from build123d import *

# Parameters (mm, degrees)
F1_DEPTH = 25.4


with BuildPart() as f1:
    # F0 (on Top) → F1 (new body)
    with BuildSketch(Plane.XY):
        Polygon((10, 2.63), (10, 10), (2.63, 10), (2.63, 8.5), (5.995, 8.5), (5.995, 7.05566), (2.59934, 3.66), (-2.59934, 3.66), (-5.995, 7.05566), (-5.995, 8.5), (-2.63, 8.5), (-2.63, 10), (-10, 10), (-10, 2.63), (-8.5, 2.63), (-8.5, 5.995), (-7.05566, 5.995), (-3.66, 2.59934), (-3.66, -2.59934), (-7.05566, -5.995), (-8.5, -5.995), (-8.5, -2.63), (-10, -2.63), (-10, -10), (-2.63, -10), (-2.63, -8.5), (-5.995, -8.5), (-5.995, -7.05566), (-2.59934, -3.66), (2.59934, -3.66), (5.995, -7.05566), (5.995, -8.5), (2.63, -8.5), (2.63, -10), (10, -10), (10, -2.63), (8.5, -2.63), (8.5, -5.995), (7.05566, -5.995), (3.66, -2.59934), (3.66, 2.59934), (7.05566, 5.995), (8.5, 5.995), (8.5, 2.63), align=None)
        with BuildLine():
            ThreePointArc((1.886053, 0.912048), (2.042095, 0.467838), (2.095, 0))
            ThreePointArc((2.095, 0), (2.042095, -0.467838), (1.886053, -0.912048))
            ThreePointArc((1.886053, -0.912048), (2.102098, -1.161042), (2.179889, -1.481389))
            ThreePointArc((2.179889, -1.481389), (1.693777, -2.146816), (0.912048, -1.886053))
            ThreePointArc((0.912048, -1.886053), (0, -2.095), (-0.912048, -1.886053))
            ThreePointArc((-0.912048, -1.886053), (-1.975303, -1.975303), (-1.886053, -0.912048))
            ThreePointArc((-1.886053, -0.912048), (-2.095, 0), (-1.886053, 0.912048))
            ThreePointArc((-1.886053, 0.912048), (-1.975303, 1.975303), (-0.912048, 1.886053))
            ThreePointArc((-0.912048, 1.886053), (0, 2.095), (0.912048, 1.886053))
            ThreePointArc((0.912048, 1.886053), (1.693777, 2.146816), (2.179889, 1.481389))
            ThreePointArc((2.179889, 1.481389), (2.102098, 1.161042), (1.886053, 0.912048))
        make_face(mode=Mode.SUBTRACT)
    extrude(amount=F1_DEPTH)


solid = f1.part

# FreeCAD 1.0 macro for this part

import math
import FreeCAD as App
import Part
import Sketcher

V = App.Vector
Q = App.Units.Quantity


def add_polygon(sketch, points):
    """Adds a closed chain of lines whose ends are joined by coincident constraints."""
    first, n = sketch.GeometryCount, len(points)
    for a, b in zip(points, points[1:] + points[:1]):
        sketch.addGeometry(Part.LineSegment(App.Vector(*a, 0), App.Vector(*b, 0)), False)
    for i in range(n):
        sketch.addConstraint(Sketcher.Constraint("Coincident", first + i, 2, first + (i + 1) % n, 1))

doc = App.newDocument("Part")
params = doc.addObject("Spreadsheet::Sheet", "Params")
for row, (alias, value) in enumerate([
    ("pad1_length", "1 in"),
], start=1):
    params.set(f"A{row}", alias)
    params.set(f"B{row}", "=" + value)
    params.setAlias(f"B{row}", alias)

body = doc.addObject("PartDesign::Body", "Body")

# Sketch on XY plane
sketch1 = body.newObject("Sketcher::SketchObject", "Sketch")
sketch1.AttachmentSupport = (doc.getObject("XY_Plane"), [""])
sketch1.MapMode = "FlatFace"
add_polygon(sketch1, [(10, 2.63), (10, 10), (2.63, 10), (2.63, 8.5), (5.995, 8.5), (5.995, 7.05566), (2.59934, 3.66), (-2.59934, 3.66), (-5.995, 7.05566), (-5.995, 8.5), (-2.63, 8.5), (-2.63, 10), (-10, 10), (-10, 2.63), (-8.5, 2.63), (-8.5, 5.995), (-7.05566, 5.995), (-3.66, 2.59934), (-3.66, -2.59934), (-7.05566, -5.995), (-8.5, -5.995), (-8.5, -2.63), (-10, -2.63), (-10, -10), (-2.63, -10), (-2.63, -8.5), (-5.995, -8.5), (-5.995, -7.05566), (-2.59934, -3.66), (2.59934, -3.66), (5.995, -7.05566), (5.995, -8.5), (2.63, -8.5), (2.63, -10), (10, -10), (10, -2.63), (8.5, -2.63), (8.5, -5.995), (7.05566, -5.995), (3.66, -2.59934), (3.66, 2.59934), (7.05566, 5.995), (8.5, 5.995), (8.5, 2.63)])  # lines 0-43
sketch1.addGeometry(Part.ArcOfCircle(Part.Circle(V(1.481387, 1.48139, 0), V(0, 0, 1), 0.698502), math.radians(-54.59629), math.radians(-0.000086)), False)  # 44
sketch1.addGeometry(Part.ArcOfCircle(Part.Circle(V(-0.000017, -0.000003, 0), V(0, 0, 1), 2.095017), math.radians(0.000072), math.radians(25.807106)), False)  # 45
sketch1.addGeometry(Part.ArcOfCircle(Part.Circle(V(-0.000017, 0.000003, 0), V(0, 0, 1), 2.095017), math.radians(-25.807106), math.radians(-0.000072)), False)  # 46
sketch1.addGeometry(Part.ArcOfCircle(Part.Circle(V(1.481387, -1.48139, 0), V(0, 0, 1), 0.698502), math.radians(0.000086), math.radians(54.59629)), False)  # 47
sketch1.addGeometry(Part.ArcOfCircle(Part.Circle(V(1.481389, -1.481389, 0), V(0, 0, 1), 0.6985), math.radians(-144.596328), math.radians(-0.000036)), False)  # 48
sketch1.addGeometry(Part.ArcOfCircle(Part.Circle(V(0, 0.000006, 0), V(0, 0, 1), 2.095006), math.radians(-115.807177), math.radians(-64.192823)), False)  # 49
sketch1.addGeometry(Part.ArcOfCircle(Part.Circle(V(-1.481389, -1.481389, 0), V(0, 0, 1), 0.6985), math.radians(125.40364), math.radians(324.59636)), False)  # 50
sketch1.addGeometry(Part.ArcOfCircle(Part.Circle(V(0.000006, 0, 0), V(0, 0, 1), 2.095006), math.radians(154.192823), math.radians(205.807177)), False)  # 51
sketch1.addGeometry(Part.ArcOfCircle(Part.Circle(V(-1.481389, 1.481389, 0), V(0, 0, 1), 0.6985), math.radians(35.40364), math.radians(234.59636)), False)  # 52
sketch1.addGeometry(Part.ArcOfCircle(Part.Circle(V(0, -0.000006, 0), V(0, 0, 1), 2.095006), math.radians(64.192823), math.radians(115.807177)), False)  # 53
sketch1.addGeometry(Part.ArcOfCircle(Part.Circle(V(1.481389, 1.481389, 0), V(0, 0, 1), 0.6985), math.radians(0.000036), math.radians(144.596328)), False)  # 54
sketch1.addConstraint(Sketcher.Constraint("Coincident", 44, 1, 45, 2))
sketch1.addConstraint(Sketcher.Constraint("Coincident", 45, 1, 46, 2))
sketch1.addConstraint(Sketcher.Constraint("Coincident", 46, 1, 47, 2))
sketch1.addConstraint(Sketcher.Constraint("Coincident", 47, 1, 48, 2))
sketch1.addConstraint(Sketcher.Constraint("Coincident", 48, 1, 49, 2))
sketch1.addConstraint(Sketcher.Constraint("Coincident", 49, 1, 50, 2))
sketch1.addConstraint(Sketcher.Constraint("Coincident", 50, 1, 51, 2))
sketch1.addConstraint(Sketcher.Constraint("Coincident", 51, 1, 52, 2))
sketch1.addConstraint(Sketcher.Constraint("Coincident", 52, 1, 53, 2))
sketch1.addConstraint(Sketcher.Constraint("Coincident", 53, 1, 54, 2))
sketch1.addConstraint(Sketcher.Constraint("Coincident", 54, 1, 44, 2))
sketch1.addConstraint(Sketcher.Constraint("Vertical", 0))
sketch1.addConstraint(Sketcher.Constraint("Horizontal", 1))
sketch1.addConstraint(Sketcher.Constraint("Vertical", 2))
sketch1.addConstraint(Sketcher.Constraint("Horizontal", 3))
sketch1.addConstraint(Sketcher.Constraint("Vertical", 4))
sketch1.addConstraint(Sketcher.Constraint("Horizontal", 6))
sketch1.addConstraint(Sketcher.Constraint("Vertical", 8))
sketch1.addConstraint(Sketcher.Constraint("Horizontal", 9))
sketch1.addConstraint(Sketcher.Constraint("Vertical", 10))
sketch1.addConstraint(Sketcher.Constraint("Horizontal", 11))
sketch1.addConstraint(Sketcher.Constraint("Vertical", 12))
sketch1.addConstraint(Sketcher.Constraint("Horizontal", 13))
sketch1.addConstraint(Sketcher.Constraint("Vertical", 14))
sketch1.addConstraint(Sketcher.Constraint("Horizontal", 15))
sketch1.addConstraint(Sketcher.Constraint("Vertical", 17))
sketch1.addConstraint(Sketcher.Constraint("Horizontal", 19))
sketch1.addConstraint(Sketcher.Constraint("Vertical", 20))
sketch1.addConstraint(Sketcher.Constraint("Horizontal", 21))
sketch1.addConstraint(Sketcher.Constraint("Vertical", 22))
sketch1.addConstraint(Sketcher.Constraint("Horizontal", 23))
sketch1.addConstraint(Sketcher.Constraint("Vertical", 24))
sketch1.addConstraint(Sketcher.Constraint("Horizontal", 25))
sketch1.addConstraint(Sketcher.Constraint("Vertical", 26))
sketch1.addConstraint(Sketcher.Constraint("Horizontal", 28))
sketch1.addConstraint(Sketcher.Constraint("Vertical", 30))
sketch1.addConstraint(Sketcher.Constraint("Horizontal", 31))
sketch1.addConstraint(Sketcher.Constraint("Vertical", 32))
sketch1.addConstraint(Sketcher.Constraint("Horizontal", 33))
sketch1.addConstraint(Sketcher.Constraint("Vertical", 34))
sketch1.addConstraint(Sketcher.Constraint("Horizontal", 35))
sketch1.addConstraint(Sketcher.Constraint("Vertical", 36))
sketch1.addConstraint(Sketcher.Constraint("Horizontal", 37))
sketch1.addConstraint(Sketcher.Constraint("Vertical", 39))
sketch1.addConstraint(Sketcher.Constraint("Horizontal", 41))
sketch1.addConstraint(Sketcher.Constraint("Vertical", 42))
sketch1.addConstraint(Sketcher.Constraint("Horizontal", 43))
sketch1.addConstraint(Sketcher.Constraint("Coincident", 49, 3, -1, 1))
sketch1.addConstraint(Sketcher.Constraint("Coincident", 51, 3, -1, 1))
sketch1.addConstraint(Sketcher.Constraint("Coincident", 53, 3, -1, 1))
sketch1.addConstraint(Sketcher.Constraint("Coincident", 46, 3, 45, 3))
sketch1.addConstraint(Sketcher.Constraint("Coincident", 48, 3, 47, 3))
sketch1.addConstraint(Sketcher.Constraint("Coincident", 54, 3, 44, 3))
sketch1.addConstraint(Sketcher.Constraint("Equal", 44, 47))
sketch1.addConstraint(Sketcher.Constraint("Equal", 48, 50))
sketch1.addConstraint(Sketcher.Constraint("Equal", 49, 51))
sketch1.addConstraint(Sketcher.Constraint("Equal", 50, 52))
sketch1.addConstraint(Sketcher.Constraint("Equal", 51, 53))
sketch1.addConstraint(Sketcher.Constraint("Symmetric", 44, 3, 50, 3, -1, 1))
sketch1.addConstraint(Sketcher.Constraint("Symmetric", 47, 3, 52, 3, -1, 1))
sketch1.addConstraint(Sketcher.Constraint("Symmetric", 0, 2, 22, 2, -1, 1))
sketch1.addConstraint(Sketcher.Constraint("Symmetric", 2, 2, 24, 2, -1, 1))
sketch1.addConstraint(Sketcher.Constraint("Symmetric", 4, 2, 26, 2, -1, 1))
sketch1.addConstraint(Sketcher.Constraint("Symmetric", 5, 2, 27, 2, -1, 1))
sketch1.addConstraint(Sketcher.Constraint("Symmetric", 7, 2, 29, 2, -1, 1))
sketch1.addConstraint(Sketcher.Constraint("Symmetric", 9, 2, 31, 2, -1, 1))
sketch1.addConstraint(Sketcher.Constraint("Symmetric", 11, 2, 33, 2, -1, 1))
sketch1.addConstraint(Sketcher.Constraint("Symmetric", 13, 2, 35, 2, -1, 1))
sketch1.addConstraint(Sketcher.Constraint("Symmetric", 15, 2, 37, 2, -1, 1))
sketch1.addConstraint(Sketcher.Constraint("Symmetric", 16, 2, 38, 2, -1, 1))
sketch1.addConstraint(Sketcher.Constraint("Symmetric", 18, 2, 40, 2, -1, 1))
sketch1.addConstraint(Sketcher.Constraint("Symmetric", 20, 2, 42, 2, -1, 1))
sketch1.addConstraint(Sketcher.Constraint("Symmetric", 47, 3, 50, 3, -2))
sketch1.addConstraint(Sketcher.Constraint("Symmetric", 4, 2, 7, 2, -2))
sketch1.addConstraint(Sketcher.Constraint("Symmetric", 2, 2, 9, 2, -2))
sketch1.addConstraint(Sketcher.Constraint("Symmetric", 0, 2, 11, 2, -2))
sketch1.addConstraint(Sketcher.Constraint("Symmetric", 20, 2, 35, 2, -2))
sketch1.addConstraint(Sketcher.Constraint("Symmetric", 18, 2, 37, 2, -2))
sketch1.addConstraint(Sketcher.Constraint("PointOnObject", 45, 1, -1))
sketch1.addConstraint(Sketcher.Constraint("Perpendicular", 5, 7))
sketch1.addConstraint(Sketcher.Constraint("Parallel", 7, 16))
sketch1.addConstraint(Sketcher.Constraint("Perpendicular", 16, 18))
sketch1.addConstraint(Sketcher.Constraint("Perpendicular", 27, 29))
sketch1.addConstraint(Sketcher.Constraint("Perpendicular", 38, 40))
sketch1.addConstraint(Sketcher.Constraint("Horizontal", 17, 2, 38, 2))
sketch1.addConstraint(Sketcher.Constraint("Horizontal", 50, 3, 47, 1))
sketch1.addConstraint(Sketcher.Constraint("Horizontal", 46, 1, 50, 1))
sketch1.addConstraint(Sketcher.Constraint("Horizontal", 44, 1, 51, 1))
sketch1.addConstraint(Sketcher.Constraint("Horizontal", 52, 3, 54, 1))
sketch1.addConstraint(Sketcher.Constraint("Equal", 33, 0))
sketch1.addConstraint(Sketcher.Constraint("Equal", 43, 2))
sketch1.addConstraint(Sketcher.Constraint("Equal", 41, 4))
sketch1.addConstraint(Sketcher.Constraint("Equal", 31, 14))
sketch1.addConstraint(Sketcher.Constraint("Equal", 28, 17))
sketch1.addConstraint(Sketcher.Constraint("Equal", 7, 16))
sketch1.addConstraint(Sketcher.Constraint("Radius", 44, Q("0.0275001 in")))
sketch1.addConstraint(Sketcher.Constraint("DistanceX", 1, 2, 1, 1, 7.37))
sketch1.addConstraint(Sketcher.Constraint("DistanceX", 3, 1, 3, 2, 3.365))
sketch1.addConstraint(Sketcher.Constraint("DistanceX", 13, 1, 13, 2, 1.5))
sketch1.addConstraint(Sketcher.Constraint("Radius", 45, 2.095017))
sketch1.addConstraint(Sketcher.Constraint("Radius", 49, 2.095006))
sketch1.addConstraint(Sketcher.Constraint("DistanceX", 6, 2, 6, 1, 5.19868))
sketch1.addConstraint(Sketcher.Constraint("DistanceX", 15, 1, 15, 2, 1.44434))
sketch1.addConstraint(Sketcher.Constraint("DistanceX", -1, 1, 0, 2, 10.0))
sketch1.addConstraint(Sketcher.Constraint("DistanceY", -1, 1, 44, 3, 1.48139))
sketch1.addConstraint(Sketcher.Constraint("DistanceX", -1, 1, 48, 3, 1.481389))
pad1 = body.newObject("PartDesign::Pad", "Pad")
pad1.Profile = sketch1
pad1.setExpression("Length", "Params.pad1_length")

doc.recompute()
